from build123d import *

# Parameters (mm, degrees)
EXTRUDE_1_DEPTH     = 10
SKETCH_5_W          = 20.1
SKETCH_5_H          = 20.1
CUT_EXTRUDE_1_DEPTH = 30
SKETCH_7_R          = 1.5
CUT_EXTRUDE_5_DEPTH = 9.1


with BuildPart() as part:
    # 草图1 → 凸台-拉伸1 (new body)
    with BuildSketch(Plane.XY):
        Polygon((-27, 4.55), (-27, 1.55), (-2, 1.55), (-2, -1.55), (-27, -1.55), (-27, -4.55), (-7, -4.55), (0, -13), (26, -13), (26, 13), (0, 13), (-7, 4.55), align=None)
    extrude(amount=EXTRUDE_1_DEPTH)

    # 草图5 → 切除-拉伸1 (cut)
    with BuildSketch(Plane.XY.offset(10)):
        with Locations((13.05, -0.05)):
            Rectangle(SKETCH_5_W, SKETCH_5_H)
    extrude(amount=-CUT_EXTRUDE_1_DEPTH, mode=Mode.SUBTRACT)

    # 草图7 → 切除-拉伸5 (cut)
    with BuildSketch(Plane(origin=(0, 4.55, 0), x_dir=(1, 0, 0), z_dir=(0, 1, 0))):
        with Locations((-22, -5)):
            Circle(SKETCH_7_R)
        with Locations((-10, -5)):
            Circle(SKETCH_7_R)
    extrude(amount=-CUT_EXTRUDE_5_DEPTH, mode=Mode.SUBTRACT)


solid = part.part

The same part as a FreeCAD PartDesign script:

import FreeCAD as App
import Part
import Sketcher


def add_polygon(sketch, points):
    """Adds a closed chain of lines whose ends are joined by coincident constraints."""
    first, n = sketch.GeometryCount, len(points)
    for a, b in zip(points, points[1:] + points[:1]):
        sketch.addGeometry(Part.LineSegment(App.Vector(*a, 0), App.Vector(*b, 0)), False)
    for i in range(n):
        sketch.addConstraint(Sketcher.Constraint("Coincident", first + i, 2, first + (i + 1) % n, 1))

doc = App.newDocument("Part")
params = doc.addObject("Spreadsheet::Sheet", "Params")
for row, (alias, value) in enumerate([
    ("sketch1_width", "25 mm"),
    ("sketch1_width2", "20 mm"),
    ("sketch1_width3", "26 mm"),
    ("sketch1_height", "3 mm"),
    ("sketch1_height2", "3.1 mm"),
    ("pad1_length", "10 mm"),
    ("sketch2_width", "20.1 mm"),
    ("pocket1_length", "30 mm"),
    ("sketch3_diameter", "3 mm"),
    ("pocket2_length", "9.1 mm"),
], start=1):
    params.set(f"A{row}", alias)
    params.set(f"B{row}", "=" + value)
    params.setAlias(f"B{row}", alias)

body = doc.addObject("PartDesign::Body", "Body")

# Sketch on XY plane
sketch1 = doc.addObject("Sketcher::SketchObject", "Sketch")
body.addObject(sketch1)
sketch1.AttachmentSupport = (doc.XY_Plane, [""])
sketch1.MapMode = "FlatFace"
add_polygon(sketch1, [(-27, 4.55), (-27, 1.55), (-2, 1.55), (-2, -1.55), (-27, -1.55), (-27, -4.55), (-7, -4.55), (0, -13), (26, -13), (26, 13), (0, 13), (-7, 4.55)])  # lines 0-11
sketch1.addConstraint([
    Sketcher.Constraint("Vertical", 0),
    Sketcher.Constraint("Horizontal", 1),
    Sketcher.Constraint("Vertical", 2),
    Sketcher.Constraint("Horizontal", 3),
    Sketcher.Constraint("Vertical", 4),
    Sketcher.Constraint("Horizontal", 5),
    Sketcher.Constraint("Horizontal", 7),
    Sketcher.Constraint("Vertical", 8),
    Sketcher.Constraint("Horizontal", 9),
    Sketcher.Constraint("Horizontal", 11),
    Sketcher.Constraint("Symmetric", 6, 2, 9, 2, -1, 1),
    Sketcher.Constraint("Symmetric", 0, 2, 3, 2, -1),
    Sketcher.Constraint("Symmetric", 5, 2, 10, 2, -1),
    Sketcher.Constraint("PointOnObject", 6, 2, -2),
    Sketcher.Constraint("Equal", 9, 8),
    Sketcher.Constraint("DistanceX", 1, 1, 1, 2, 25.0),
    Sketcher.Constraint("DistanceX", 5, 1, 5, 2, 20.0),
    Sketcher.Constraint("DistanceX", 7, 1, 7, 2, 26.0),
    Sketcher.Constraint("DistanceY", 0, 2, 0, 1, 3.0),
    Sketcher.Constraint("DistanceY", 2, 2, 2, 1, 3.1),
    Sketcher.Constraint("DistanceX", 0, 2, -1, 1, 27.0),
])
sketch1.setExpression("Constraints[27]", "Params.sketch1_width")
sketch1.setExpression("Constraints[28]", "Params.sketch1_width2")
sketch1.setExpression("Constraints[29]", "Params.sketch1_width3")
sketch1.setExpression("Constraints[30]", "Params.sketch1_height")
sketch1.setExpression("Constraints[31]", "Params.sketch1_height2")
pad1 = doc.addObject("PartDesign::Pad", "Pad")
body.addObject(pad1)
pad1.Profile = sketch1
pad1.setExpression("Length", "Params.pad1_length")

# Sketch on XY plane
sketch2 = doc.addObject("Sketcher::SketchObject", "Sketch001")
body.addObject(sketch2)
sketch2.AttachmentSupport = (doc.XY_Plane, [""])
sketch2.MapMode = "FlatFace"
sketch2.AttachmentOffset = App.Placement(App.Vector(0, 0, 10), App.Rotation())
add_polygon(sketch2, [(3, 10), (3, -10.1), (23.1, -10.1), (23.1, 10)])  # lines 0-3
sketch2.addConstraint([
    Sketcher.Constraint("Vertical", 0),
    Sketcher.Constraint("Horizontal", 1),
    Sketcher.Constraint("Vertical", 2),
    Sketcher.Constraint("Horizontal", 3),
    Sketcher.Constraint("Equal", 3, 0),
    Sketcher.Constraint("DistanceX", 1, 1, 1, 2, 20.1),
    Sketcher.Constraint("DistanceX", -1, 1, 0, 2, 3.0),
    Sketcher.Constraint("DistanceY", -1, 1, 2, 2, 10.0),
])
sketch2.setExpression("Constraints[9]", "Params.sketch2_width")
pocket1 = doc.addObject("PartDesign::Pocket", "Pocket")
body.addObject(pocket1)
pocket1.Profile = sketch2
pocket1.setExpression("Length", "Params.pocket1_length")

# Sketch on XZ plane
sketch3 = doc.addObject("Sketcher::SketchObject", "Sketch002")
body.addObject(sketch3)
sketch3.AttachmentSupport = (doc.XZ_Plane, [""])
sketch3.MapMode = "FlatFace"
sketch3.AttachmentOffset = App.Placement(App.Vector(0, 0, -4.55), App.Rotation())
sketch3.addGeometry([
    Part.Circle(App.Vector(-22, 5, 0), App.Vector(0, 0, 1), 1.5),
    Part.Circle(App.Vector(-10, 5, 0), App.Vector(0, 0, 1), 1.5),
], False)
sketch3.addConstraint([
    Sketcher.Constraint("Equal", 0, 1),
    Sketcher.Constraint("Horizontal", 0, 3, 1, 3),
    Sketcher.Constraint("Diameter", 0, 3.0),
    Sketcher.Constraint("DistanceX", 0, 3, -1, 1, 22.0),
    Sketcher.Constraint("DistanceY", -1, 1, 0, 3, 5.0),
    Sketcher.Constraint("DistanceX", 1, 3, -1, 1, 10.0),
])
sketch3.setExpression("Constraints[2]", "Params.sketch3_diameter")
pocket2 = doc.addObject("PartDesign::Pocket", "Pocket001")
body.addObject(pocket2)
pocket2.Profile = sketch3
pocket2.setExpression("Length", "Params.pocket2_length")
pocket2.Reversed = True

doc.recompute()
